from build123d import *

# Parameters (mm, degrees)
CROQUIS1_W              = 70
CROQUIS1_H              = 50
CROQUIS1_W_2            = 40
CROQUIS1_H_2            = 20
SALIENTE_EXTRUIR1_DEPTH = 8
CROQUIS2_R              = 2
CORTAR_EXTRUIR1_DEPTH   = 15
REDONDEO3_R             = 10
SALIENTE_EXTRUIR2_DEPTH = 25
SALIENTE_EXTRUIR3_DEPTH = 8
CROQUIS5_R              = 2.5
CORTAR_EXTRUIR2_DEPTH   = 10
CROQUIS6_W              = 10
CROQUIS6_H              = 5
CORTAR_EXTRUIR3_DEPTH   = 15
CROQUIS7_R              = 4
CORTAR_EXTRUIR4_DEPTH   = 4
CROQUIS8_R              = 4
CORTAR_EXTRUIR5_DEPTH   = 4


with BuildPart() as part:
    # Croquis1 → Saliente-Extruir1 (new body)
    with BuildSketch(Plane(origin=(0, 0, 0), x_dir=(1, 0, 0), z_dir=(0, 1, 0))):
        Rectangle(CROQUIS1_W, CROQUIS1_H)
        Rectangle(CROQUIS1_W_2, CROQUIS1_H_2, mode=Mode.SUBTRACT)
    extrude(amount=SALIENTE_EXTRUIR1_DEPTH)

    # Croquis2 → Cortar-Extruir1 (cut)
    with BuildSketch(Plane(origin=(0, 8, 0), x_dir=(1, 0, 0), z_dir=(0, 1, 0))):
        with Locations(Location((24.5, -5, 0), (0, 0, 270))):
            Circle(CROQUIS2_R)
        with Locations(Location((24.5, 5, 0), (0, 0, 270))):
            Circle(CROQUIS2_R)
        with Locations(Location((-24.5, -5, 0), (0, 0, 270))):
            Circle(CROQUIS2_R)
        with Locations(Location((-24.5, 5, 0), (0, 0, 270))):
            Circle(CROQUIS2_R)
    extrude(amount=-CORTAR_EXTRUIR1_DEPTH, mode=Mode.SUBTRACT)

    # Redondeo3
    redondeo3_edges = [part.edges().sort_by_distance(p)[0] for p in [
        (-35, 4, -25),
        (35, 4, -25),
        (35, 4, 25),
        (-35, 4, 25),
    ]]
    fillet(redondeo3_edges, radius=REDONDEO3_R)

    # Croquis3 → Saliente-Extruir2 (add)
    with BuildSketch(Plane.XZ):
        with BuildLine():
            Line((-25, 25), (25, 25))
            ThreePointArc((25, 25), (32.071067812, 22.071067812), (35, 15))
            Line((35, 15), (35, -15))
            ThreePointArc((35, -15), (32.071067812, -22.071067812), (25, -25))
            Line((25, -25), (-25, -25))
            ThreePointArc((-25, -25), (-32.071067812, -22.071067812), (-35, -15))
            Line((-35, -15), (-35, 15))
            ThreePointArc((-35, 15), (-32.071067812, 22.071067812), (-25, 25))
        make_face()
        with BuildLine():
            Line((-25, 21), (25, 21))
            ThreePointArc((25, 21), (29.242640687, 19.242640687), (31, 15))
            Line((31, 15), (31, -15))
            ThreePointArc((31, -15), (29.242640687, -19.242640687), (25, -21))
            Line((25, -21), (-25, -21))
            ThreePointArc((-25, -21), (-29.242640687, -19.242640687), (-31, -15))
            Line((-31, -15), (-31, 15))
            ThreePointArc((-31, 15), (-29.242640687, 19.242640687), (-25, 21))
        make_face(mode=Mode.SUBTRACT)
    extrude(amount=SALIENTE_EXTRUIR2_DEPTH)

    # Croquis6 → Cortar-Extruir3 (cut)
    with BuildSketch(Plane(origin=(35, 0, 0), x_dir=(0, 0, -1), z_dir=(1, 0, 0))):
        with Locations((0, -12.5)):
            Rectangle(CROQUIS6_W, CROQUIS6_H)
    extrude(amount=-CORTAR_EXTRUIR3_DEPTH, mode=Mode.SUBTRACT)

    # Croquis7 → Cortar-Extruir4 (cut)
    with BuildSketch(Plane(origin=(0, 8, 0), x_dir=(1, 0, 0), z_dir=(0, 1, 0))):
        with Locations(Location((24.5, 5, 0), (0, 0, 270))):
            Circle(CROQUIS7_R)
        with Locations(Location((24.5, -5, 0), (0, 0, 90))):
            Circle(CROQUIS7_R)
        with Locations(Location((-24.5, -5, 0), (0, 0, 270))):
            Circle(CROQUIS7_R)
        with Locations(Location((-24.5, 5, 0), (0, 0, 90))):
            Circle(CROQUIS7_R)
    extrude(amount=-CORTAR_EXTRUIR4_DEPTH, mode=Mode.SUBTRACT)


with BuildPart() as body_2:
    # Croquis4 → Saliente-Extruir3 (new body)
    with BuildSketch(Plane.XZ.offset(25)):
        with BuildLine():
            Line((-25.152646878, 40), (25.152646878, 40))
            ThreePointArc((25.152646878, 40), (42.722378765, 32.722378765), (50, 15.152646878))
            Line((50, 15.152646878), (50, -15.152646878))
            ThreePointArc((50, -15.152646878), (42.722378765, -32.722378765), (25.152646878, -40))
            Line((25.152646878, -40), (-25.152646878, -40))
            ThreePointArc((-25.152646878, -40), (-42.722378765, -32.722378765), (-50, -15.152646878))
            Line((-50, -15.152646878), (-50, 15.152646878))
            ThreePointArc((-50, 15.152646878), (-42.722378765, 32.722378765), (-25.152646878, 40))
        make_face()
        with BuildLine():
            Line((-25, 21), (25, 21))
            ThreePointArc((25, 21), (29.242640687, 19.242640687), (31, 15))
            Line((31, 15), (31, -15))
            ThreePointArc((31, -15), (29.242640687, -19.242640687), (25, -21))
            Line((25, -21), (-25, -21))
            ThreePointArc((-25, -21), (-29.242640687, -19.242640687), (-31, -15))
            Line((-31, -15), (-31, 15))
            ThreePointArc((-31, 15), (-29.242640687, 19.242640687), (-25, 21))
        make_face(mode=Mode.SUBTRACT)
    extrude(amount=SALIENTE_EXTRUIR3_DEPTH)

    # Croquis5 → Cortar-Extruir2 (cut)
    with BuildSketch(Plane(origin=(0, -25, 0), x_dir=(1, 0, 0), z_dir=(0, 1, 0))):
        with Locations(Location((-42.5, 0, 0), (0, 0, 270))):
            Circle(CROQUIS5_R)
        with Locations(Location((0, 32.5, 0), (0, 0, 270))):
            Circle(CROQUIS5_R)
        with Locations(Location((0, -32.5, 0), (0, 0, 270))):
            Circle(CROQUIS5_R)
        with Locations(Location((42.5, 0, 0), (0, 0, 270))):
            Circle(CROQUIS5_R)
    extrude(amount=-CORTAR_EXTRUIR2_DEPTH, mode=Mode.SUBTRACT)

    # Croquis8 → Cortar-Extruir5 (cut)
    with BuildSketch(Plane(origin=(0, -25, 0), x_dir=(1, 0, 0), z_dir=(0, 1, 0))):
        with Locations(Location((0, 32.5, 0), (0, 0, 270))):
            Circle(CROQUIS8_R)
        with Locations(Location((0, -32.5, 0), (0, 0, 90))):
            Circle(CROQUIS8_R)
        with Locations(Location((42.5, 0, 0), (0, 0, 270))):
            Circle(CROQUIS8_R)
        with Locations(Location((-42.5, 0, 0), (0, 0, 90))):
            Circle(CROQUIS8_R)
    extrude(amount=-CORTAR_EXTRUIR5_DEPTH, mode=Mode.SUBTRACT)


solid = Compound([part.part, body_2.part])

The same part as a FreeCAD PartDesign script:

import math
import FreeCAD as App
import Part
import Sketcher
Q = App.Units.Quantity


def edges_at(feature, points):
    """Names of the edges that pass closest to the given points."""
    edges = feature.Shape.Edges
    near = lambda p: min(range(len(edges)), key=lambda i: edges[i].distToShape(Part.Vertex(*p))[0])
    return sorted({f"Edge{near(p) + 1}" for p in points})

doc = App.newDocument("Part")
body = doc.addObject("PartDesign::Body", "Body")

# Sketch on XZ plane
sketch1 = body.newObject("Sketcher::SketchObject", "Sketch")
sketch1.AttachmentSupport = (doc.getObject("XZ_Plane"), [""])
sketch1.MapMode = "FlatFace"
sketch1.addGeometry([
    Part.LineSegment(App.Vector(-35, -25, 0), App.Vector(-35, 25, 0)),  # 0
    Part.LineSegment(App.Vector(-35, 25, 0), App.Vector(35, 25, 0)),  # 1
    Part.LineSegment(App.Vector(35, 25, 0), App.Vector(35, -25, 0)),  # 2
    Part.LineSegment(App.Vector(35, -25, 0), App.Vector(-35, -25, 0)),  # 3
    Part.LineSegment(App.Vector(20, 10, 0), App.Vector(-20, 10, 0)),  # 4
    Part.LineSegment(App.Vector(-20, 10, 0), App.Vector(-20, -10, 0)),  # 5
    Part.LineSegment(App.Vector(-20, -10, 0), App.Vector(20, -10, 0)),  # 6
    Part.LineSegment(App.Vector(20, -10, 0), App.Vector(20, 10, 0)),  # 7
], False)
sketch1.addConstraint([
    Sketcher.Constraint("Coincident", 0, 2, 1, 1),
    Sketcher.Constraint("Coincident", 1, 2, 2, 1),
    Sketcher.Constraint("Coincident", 2, 2, 3, 1),
    Sketcher.Constraint("Coincident", 3, 2, 0, 1),
    Sketcher.Constraint("Coincident", 4, 2, 5, 1),
    Sketcher.Constraint("Coincident", 5, 2, 6, 1),
    Sketcher.Constraint("Coincident", 6, 2, 7, 1),
    Sketcher.Constraint("Coincident", 7, 2, 4, 1),
    Sketcher.Constraint("Vertical", 0),
    Sketcher.Constraint("Horizontal", 1),
    Sketcher.Constraint("Vertical", 2),
    Sketcher.Constraint("Horizontal", 3),
    Sketcher.Constraint("Horizontal", 4),
    Sketcher.Constraint("Vertical", 5),
    Sketcher.Constraint("Horizontal", 6),
    Sketcher.Constraint("Vertical", 7),
    Sketcher.Constraint("Symmetric", 0, 2, 2, 2, -1, 1),
    Sketcher.Constraint("Symmetric", 4, 2, 6, 2, -1, 1),
    Sketcher.Constraint("DistanceX", 1, 1, 1, 2, Q("70 mm")),
    Sketcher.Constraint("DistanceX", 4, 2, 4, 1, Q("40 mm")),
    Sketcher.Constraint("DistanceY", 0, 1, 0, 2, Q("50 mm")),
    Sketcher.Constraint("DistanceY", 5, 2, 5, 1, Q("20 mm")),
])
pad1 = body.newObject("PartDesign::Pad", "Pad")
pad1.Profile = sketch1
pad1.Length = 8
pad1.Reversed = True

# Sketch on XZ plane
sketch2 = body.newObject("Sketcher::SketchObject", "Sketch001")
sketch2.AttachmentSupport = (doc.getObject("XZ_Plane"), [""])
sketch2.MapMode = "FlatFace"
sketch2.AttachmentOffset = App.Placement(App.Vector(0, 0, -8), App.Rotation())
sketch2.addGeometry([
    Part.Circle(App.Vector(24.5, 5, 0), App.Vector(0, 0, 1), 2),
    Part.Circle(App.Vector(24.5, -5, 0), App.Vector(0, 0, 1), 2),
    Part.Circle(App.Vector(-24.5, 5, 0), App.Vector(0, 0, 1), 2),
    Part.Circle(App.Vector(-24.5, -5, 0), App.Vector(0, 0, 1), 2),
], False)
sketch2.addConstraint([
    Sketcher.Constraint("Equal", 0, 1),
    Sketcher.Constraint("Equal", 1, 2),
    Sketcher.Constraint("Equal", 2, 3),
    Sketcher.Constraint("Symmetric", 1, 3, 2, 3, -1, 1),
    Sketcher.Constraint("Symmetric", 0, 3, 3, 3, -1, 1),
    Sketcher.Constraint("Symmetric", 0, 3, 2, 3, -2),
    Sketcher.Constraint("Diameter", 0, Q("4 mm")),
    Sketcher.Constraint("DistanceY", -1, 1, 0, 3, Q("5 mm")),
    Sketcher.Constraint("DistanceX", 2, 3, 0, 3, Q("49 mm")),
])
pocket1 = body.newObject("PartDesign::Pocket", "Pocket")
pocket1.Profile = sketch2
pocket1.Length = 15
pocket1.Reversed = True
doc.recompute()

fillet = body.newObject("PartDesign::Fillet", "Fillet")
fillet.Base = (pocket1, edges_at(pocket1, [
    (-35, 4, -25),
    (35, 4, -25),
    (35, 4, 25),
    (-35, 4, 25),
]))
fillet.Radius = 10

# Sketch on XZ plane
sketch3 = body.newObject("Sketcher::SketchObject", "Sketch002")
sketch3.AttachmentSupport = (doc.getObject("XZ_Plane"), [""])
sketch3.MapMode = "FlatFace"
sketch3.addGeometry([
    Part.LineSegment(App.Vector(25, 25, 0), App.Vector(-25, 25, 0)),  # 0
    Part.ArcOfCircle(Part.Circle(App.Vector(-25, 15, 0), App.Vector(0, 0, 1), 10), math.radians(90), math.radians(180)),  # 1
    Part.LineSegment(App.Vector(-35, 15, 0), App.Vector(-35, -15, 0)),  # 2
    Part.ArcOfCircle(Part.Circle(App.Vector(-25, -15, 0), App.Vector(0, 0, 1), 10), math.radians(180), math.radians(270)),  # 3
    Part.LineSegment(App.Vector(-25, -25, 0), App.Vector(25, -25, 0)),  # 4
    Part.ArcOfCircle(Part.Circle(App.Vector(25, -15, 0), App.Vector(0, 0, 1), 10), math.radians(-90), math.radians(0)),  # 5
    Part.LineSegment(App.Vector(35, -15, 0), App.Vector(35, 15, 0)),  # 6
    Part.ArcOfCircle(Part.Circle(App.Vector(25, 15, 0), App.Vector(0, 0, 1), 10), math.radians(0), math.radians(90)),  # 7
    Part.LineSegment(App.Vector(-25, 21, 0), App.Vector(25, 21, 0)),  # 8
    Part.ArcOfCircle(Part.Circle(App.Vector(25, 15, 0), App.Vector(0, 0, 1), 6), math.radians(0), math.radians(90)),  # 9
    Part.LineSegment(App.Vector(31, 15, 0), App.Vector(31, -15, 0)),  # 10
    Part.ArcOfCircle(Part.Circle(App.Vector(25, -15, 0), App.Vector(0, 0, 1), 6), math.radians(-90), math.radians(0)),  # 11
    Part.LineSegment(App.Vector(25, -21, 0), App.Vector(-25, -21, 0)),  # 12
    Part.ArcOfCircle(Part.Circle(App.Vector(-25, -15, 0), App.Vector(0, 0, 1), 6), math.radians(180), math.radians(270)),  # 13
    Part.LineSegment(App.Vector(-31, -15, 0), App.Vector(-31, 15, 0)),  # 14
    Part.ArcOfCircle(Part.Circle(App.Vector(-25, 15, 0), App.Vector(0, 0, 1), 6), math.radians(90), math.radians(180)),  # 15
], False)
sketch3.addConstraint([
    Sketcher.Constraint("Tangent", 0, 2, 1, 1),
    Sketcher.Constraint("Tangent", 1, 2, 2, 1),
    Sketcher.Constraint("Tangent", 2, 2, 3, 1),
    Sketcher.Constraint("Tangent", 3, 2, 4, 1),
    Sketcher.Constraint("Tangent", 4, 2, 5, 1),
    Sketcher.Constraint("Tangent", 5, 2, 6, 1),
    Sketcher.Constraint("Tangent", 6, 2, 7, 1),
    Sketcher.Constraint("Tangent", 7, 2, 0, 1),
    Sketcher.Constraint("Tangent", 8, 2, 9, 2),
    Sketcher.Constraint("Tangent", 9, 1, 10, 1),
    Sketcher.Constraint("Tangent", 10, 2, 11, 2),
    Sketcher.Constraint("Tangent", 11, 1, 12, 1),
    Sketcher.Constraint("Tangent", 12, 2, 13, 2),
    Sketcher.Constraint("Tangent", 13, 1, 14, 1),
    Sketcher.Constraint("Tangent", 14, 2, 15, 2),
    Sketcher.Constraint("Tangent", 15, 1, 8, 1),
    Sketcher.Constraint("Horizontal", 0),
    Sketcher.Constraint("Vertical", 2),
    Sketcher.Constraint("Horizontal", 4),
    Sketcher.Constraint("Vertical", 6),
    Sketcher.Constraint("Horizontal", 8),
    Sketcher.Constraint("Vertical", 10),
    Sketcher.Constraint("Horizontal", 12),
    Sketcher.Constraint("Vertical", 14),
    Sketcher.Constraint("Coincident", 9, 3, 7, 3),
    Sketcher.Constraint("Coincident", 11, 3, 5, 3),
    Sketcher.Constraint("Coincident", 13, 3, 3, 3),
    Sketcher.Constraint("Equal", 1, 3),
    Sketcher.Constraint("Equal", 3, 5),
    Sketcher.Constraint("Equal", 5, 7),
    Sketcher.Constraint("Equal", 13, 15),
    Sketcher.Constraint("Symmetric", 1, 3, 5, 3, -1, 1),
    Sketcher.Constraint("Radius", 1, Q("10 mm")),
    Sketcher.Constraint("Radius", 9, Q("6 mm")),
    Sketcher.Constraint("DistanceX", 0, 2, 0, 1, Q("50 mm")),
    Sketcher.Constraint("DistanceY", 2, 2, 2, 1, Q("30 mm")),
])
pad2 = body.newObject("PartDesign::Pad", "Pad001")
pad2.Profile = sketch3
pad2.Length = 25

# Sketch on YZ plane
sketch4 = body.newObject("Sketcher::SketchObject", "Sketch003")
sketch4.AttachmentSupport = (doc.getObject("YZ_Plane"), [""])
sketch4.MapMode = "FlatFace"
sketch4.AttachmentOffset = App.Placement(App.Vector(0, 0, 35), App.Rotation())
sketch4.addGeometry([
    Part.LineSegment(App.Vector(-10, 5, 0), App.Vector(-15, 5, 0)),
    Part.LineSegment(App.Vector(-15, 5, 0), App.Vector(-15, -5, 0)),
    Part.LineSegment(App.Vector(-15, -5, 0), App.Vector(-10, -5, 0)),
    Part.LineSegment(App.Vector(-10, -5, 0), App.Vector(-10, 5, 0)),
], False)
sketch4.addConstraint([
    Sketcher.Constraint("Coincident", 0, 2, 1, 1),
    Sketcher.Constraint("Coincident", 1, 2, 2, 1),
    Sketcher.Constraint("Coincident", 2, 2, 3, 1),
    Sketcher.Constraint("Coincident", 3, 2, 0, 1),
    Sketcher.Constraint("Horizontal", 0),
    Sketcher.Constraint("Vertical", 1),
    Sketcher.Constraint("Horizontal", 2),
    Sketcher.Constraint("Vertical", 3),
    Sketcher.Constraint("DistanceX", 0, 2, 0, 1, Q("5 mm")),
    Sketcher.Constraint("DistanceY", 1, 2, 1, 1, Q("10 mm")),
    Sketcher.Constraint("DistanceX", 0, 2, -1, 1, Q("15 mm")),
    Sketcher.Constraint("DistanceY", -1, 1, 0, 2, Q("5 mm")),
])
pocket2 = body.newObject("PartDesign::Pocket", "Pocket001")
pocket2.Profile = sketch4
pocket2.Length = 15

# Sketch on XZ plane
sketch5 = body.newObject("Sketcher::SketchObject", "Sketch004")
sketch5.AttachmentSupport = (doc.getObject("XZ_Plane"), [""])
sketch5.MapMode = "FlatFace"
sketch5.AttachmentOffset = App.Placement(App.Vector(0, 0, -8), App.Rotation())
sketch5.addGeometry([
    Part.Circle(App.Vector(24.5, -5, 0), App.Vector(0, 0, 1), 4),
    Part.Circle(App.Vector(24.5, 5, 0), App.Vector(0, 0, 1), 4),
    Part.Circle(App.Vector(-24.5, 5, 0), App.Vector(0, 0, 1), 4),
    Part.Circle(App.Vector(-24.5, -5, 0), App.Vector(0, 0, 1), 4),
], False)
sketch5.addConstraint([
    Sketcher.Constraint("Equal", 0, 1),
    Sketcher.Constraint("Equal", 1, 2),
    Sketcher.Constraint("Equal", 2, 3),
    Sketcher.Constraint("Symmetric", 0, 3, 2, 3, -1, 1),
    Sketcher.Constraint("Symmetric", 1, 3, 3, 3, -1, 1),
    Sketcher.Constraint("Symmetric", 1, 3, 2, 3, -2),
    Sketcher.Constraint("Diameter", 0, Q("8 mm")),
    Sketcher.Constraint("DistanceY", 0, 3, -1, 1, Q("5 mm")),
    Sketcher.Constraint("DistanceX", 2, 3, 1, 3, Q("49 mm")),
])
pocket3 = body.newObject("PartDesign::Pocket", "Pocket002")
pocket3.Profile = sketch5
pocket3.Length = 4
pocket3.Reversed = True
body2 = doc.addObject("PartDesign::Body", "Body001")

# Sketch on XZ plane
sketch6 = body2.newObject("Sketcher::SketchObject", "Sketch005")
sketch6.AttachmentSupport = (doc.getObject("XZ_Plane001"), [""])
sketch6.MapMode = "FlatFace"
sketch6.AttachmentOffset = App.Placement(App.Vector(0, 0, 25), App.Rotation())
sketch6.addGeometry([
    Part.LineSegment(App.Vector(25.152647, 40, 0), App.Vector(-25.152647, 40, 0)),  # 0
    Part.ArcOfCircle(Part.Circle(App.Vector(-25.152647, 15.152647, 0), App.Vector(0, 0, 1), 24.847353), math.radians(90), math.radians(180)),  # 1
    Part.LineSegment(App.Vector(-50, 15.152647, 0), App.Vector(-50, -15.152647, 0)),  # 2
    Part.ArcOfCircle(Part.Circle(App.Vector(-25.152647, -15.152647, 0), App.Vector(0, 0, 1), 24.847353), math.radians(180), math.radians(270)),  # 3
    Part.LineSegment(App.Vector(-25.152647, -40, 0), App.Vector(25.152647, -40, 0)),  # 4
    Part.ArcOfCircle(Part.Circle(App.Vector(25.152647, -15.152647, 0), App.Vector(0, 0, 1), 24.847353), math.radians(-90), math.radians(0)),  # 5
    Part.LineSegment(App.Vector(50, -15.152647, 0), App.Vector(50, 15.152647, 0)),  # 6
    Part.ArcOfCircle(Part.Circle(App.Vector(25.152647, 15.152647, 0), App.Vector(0, 0, 1), 24.847353), math.radians(0), math.radians(90)),  # 7
    Part.LineSegment(App.Vector(-25, 21, 0), App.Vector(25, 21, 0)),  # 8
    Part.ArcOfCircle(Part.Circle(App.Vector(25, 15, 0), App.Vector(0, 0, 1), 6), math.radians(0), math.radians(90)),  # 9
    Part.LineSegment(App.Vector(31, 15, 0), App.Vector(31, -15, 0)),  # 10
    Part.ArcOfCircle(Part.Circle(App.Vector(25, -15, 0), App.Vector(0, 0, 1), 6), math.radians(-90), math.radians(0)),  # 11
    Part.LineSegment(App.Vector(25, -21, 0), App.Vector(-25, -21, 0)),  # 12
    Part.ArcOfCircle(Part.Circle(App.Vector(-25, -15, 0), App.Vector(0, 0, 1), 6), math.radians(180), math.radians(270)),  # 13
    Part.LineSegment(App.Vector(-31, -15, 0), App.Vector(-31, 15, 0)),  # 14
    Part.ArcOfCircle(Part.Circle(App.Vector(-25, 15, 0), App.Vector(0, 0, 1), 6), math.radians(90), math.radians(180)),  # 15
], False)
sketch6.addConstraint([
    Sketcher.Constraint("Tangent", 0, 2, 1, 1),
    Sketcher.Constraint("Tangent", 1, 2, 2, 1),
    Sketcher.Constraint("Tangent", 2, 2, 3, 1),
    Sketcher.Constraint("Tangent", 3, 2, 4, 1),
    Sketcher.Constraint("Tangent", 4, 2, 5, 1),
    Sketcher.Constraint("Tangent", 5, 2, 6, 1),
    Sketcher.Constraint("Tangent", 6, 2, 7, 1),
    Sketcher.Constraint("Tangent", 7, 2, 0, 1),
    Sketcher.Constraint("Tangent", 8, 2, 9, 2),
    Sketcher.Constraint("Tangent", 9, 1, 10, 1),
    Sketcher.Constraint("Tangent", 10, 2, 11, 2),
    Sketcher.Constraint("Tangent", 11, 1, 12, 1),
    Sketcher.Constraint("Tangent", 12, 2, 13, 2),
    Sketcher.Constraint("Tangent", 13, 1, 14, 1),
    Sketcher.Constraint("Tangent", 14, 2, 15, 2),
    Sketcher.Constraint("Tangent", 15, 1, 8, 1),
    Sketcher.Constraint("Horizontal", 0),
    Sketcher.Constraint("Vertical", 2),
    Sketcher.Constraint("Horizontal", 4),
    Sketcher.Constraint("Vertical", 6),
    Sketcher.Constraint("Horizontal", 8),
    Sketcher.Constraint("Vertical", 10),
    Sketcher.Constraint("Horizontal", 12),
    Sketcher.Constraint("Vertical", 14),
    Sketcher.Constraint("Equal", 1, 3),
    Sketcher.Constraint("Equal", 3, 5),
    Sketcher.Constraint("Equal", 5, 7),
    Sketcher.Constraint("Equal", 9, 11),
    Sketcher.Constraint("Equal", 11, 13),
    Sketcher.Constraint("Equal", 13, 15),
    Sketcher.Constraint("Symmetric", 1, 3, 5, 3, -1, 1),
    Sketcher.Constraint("Symmetric", 9, 3, 13, 3, -1, 1),
    Sketcher.Constraint("Radius", 9, Q("6 mm")),
    Sketcher.Constraint("DistanceX", 8, 1, 8, 2, Q("50 mm")),
    Sketcher.Constraint("DistanceY", 10, 2, 10, 1, Q("30 mm")),
    Sketcher.Constraint("DistanceY", -1, 1, 0, 2, Q("40 mm")),
    Sketcher.Constraint("DistanceX", 1, 2, -1, 1, Q("50 mm")),
    Sketcher.Constraint("Radius", 1, Q("24.847353 mm")),
])
pad3 = body2.newObject("PartDesign::Pad", "Pad002")
pad3.Profile = sketch6
pad3.Length = 8

# Sketch on XZ plane
sketch7 = body2.newObject("Sketcher::SketchObject", "Sketch006")
sketch7.AttachmentSupport = (doc.getObject("XZ_Plane001"), [""])
sketch7.MapMode = "FlatFace"
sketch7.AttachmentOffset = App.Placement(App.Vector(0, 0, 25), App.Rotation())
sketch7.addGeometry([
    Part.Circle(App.Vector(-42.5, 0, 0), App.Vector(0, 0, 1), 2.5),
    Part.Circle(App.Vector(0, -32.5, 0), App.Vector(0, 0, 1), 2.5),
    Part.Circle(App.Vector(0, 32.5, 0), App.Vector(0, 0, 1), 2.5),
    Part.Circle(App.Vector(42.5, 0, 0), App.Vector(0, 0, 1), 2.5),
], False)
sketch7.addConstraint([
    Sketcher.Constraint("Equal", 0, 1),
    Sketcher.Constraint("Equal", 1, 2),
    Sketcher.Constraint("Equal", 2, 3),
    Sketcher.Constraint("Symmetric", 1, 3, 2, 3, -1, 1),
    Sketcher.Constraint("Symmetric", 0, 3, 3, 3, -1, 1),
    Sketcher.Constraint("PointOnObject", 0, 3, -1),
    Sketcher.Constraint("PointOnObject", 1, 3, -2),
    Sketcher.Constraint("Diameter", 0, Q("5 mm")),
    Sketcher.Constraint("DistanceY", 1, 3, 2, 3, Q("65 mm")),
    Sketcher.Constraint("DistanceX", 0, 3, 3, 3, Q("85 mm")),
])
pocket4 = body2.newObject("PartDesign::Pocket", "Pocket003")
pocket4.Profile = sketch7
pocket4.Length = 10
pocket4.Reversed = True

# Sketch on XZ plane
sketch8 = body2.newObject("Sketcher::SketchObject", "Sketch007")
sketch8.AttachmentSupport = (doc.getObject("XZ_Plane001"), [""])
sketch8.MapMode = "FlatFace"
sketch8.AttachmentOffset = App.Placement(App.Vector(0, 0, 25), App.Rotation())
sketch8.addGeometry([
    Part.Circle(App.Vector(0, -32.5, 0), App.Vector(0, 0, 1), 4),
    Part.Circle(App.Vector(0, 32.5, 0), App.Vector(0, 0, 1), 4),
    Part.Circle(App.Vector(42.5, 0, 0), App.Vector(0, 0, 1), 4),
    Part.Circle(App.Vector(-42.5, 0, 0), App.Vector(0, 0, 1), 4),
], False)
sketch8.addConstraint([
    Sketcher.Constraint("Equal", 0, 1),
    Sketcher.Constraint("Equal", 1, 2),
    Sketcher.Constraint("Equal", 2, 3),
    Sketcher.Constraint("Symmetric", 0, 3, 1, 3, -1, 1),
    Sketcher.Constraint("Symmetric", 2, 3, 3, 3, -1, 1),
    Sketcher.Constraint("PointOnObject", 0, 3, -2),
    Sketcher.Constraint("PointOnObject", 2, 3, -1),
    Sketcher.Constraint("Diameter", 0, Q("8 mm")),
    Sketcher.Constraint("DistanceY", 0, 3, 1, 3, Q("65 mm")),
    Sketcher.Constraint("DistanceX", 3, 3, 2, 3, Q("85 mm")),
])
pocket5 = body2.newObject("PartDesign::Pocket", "Pocket004")
pocket5.Profile = sketch8
pocket5.Length = 4
pocket5.Reversed = True

doc.recompute()
